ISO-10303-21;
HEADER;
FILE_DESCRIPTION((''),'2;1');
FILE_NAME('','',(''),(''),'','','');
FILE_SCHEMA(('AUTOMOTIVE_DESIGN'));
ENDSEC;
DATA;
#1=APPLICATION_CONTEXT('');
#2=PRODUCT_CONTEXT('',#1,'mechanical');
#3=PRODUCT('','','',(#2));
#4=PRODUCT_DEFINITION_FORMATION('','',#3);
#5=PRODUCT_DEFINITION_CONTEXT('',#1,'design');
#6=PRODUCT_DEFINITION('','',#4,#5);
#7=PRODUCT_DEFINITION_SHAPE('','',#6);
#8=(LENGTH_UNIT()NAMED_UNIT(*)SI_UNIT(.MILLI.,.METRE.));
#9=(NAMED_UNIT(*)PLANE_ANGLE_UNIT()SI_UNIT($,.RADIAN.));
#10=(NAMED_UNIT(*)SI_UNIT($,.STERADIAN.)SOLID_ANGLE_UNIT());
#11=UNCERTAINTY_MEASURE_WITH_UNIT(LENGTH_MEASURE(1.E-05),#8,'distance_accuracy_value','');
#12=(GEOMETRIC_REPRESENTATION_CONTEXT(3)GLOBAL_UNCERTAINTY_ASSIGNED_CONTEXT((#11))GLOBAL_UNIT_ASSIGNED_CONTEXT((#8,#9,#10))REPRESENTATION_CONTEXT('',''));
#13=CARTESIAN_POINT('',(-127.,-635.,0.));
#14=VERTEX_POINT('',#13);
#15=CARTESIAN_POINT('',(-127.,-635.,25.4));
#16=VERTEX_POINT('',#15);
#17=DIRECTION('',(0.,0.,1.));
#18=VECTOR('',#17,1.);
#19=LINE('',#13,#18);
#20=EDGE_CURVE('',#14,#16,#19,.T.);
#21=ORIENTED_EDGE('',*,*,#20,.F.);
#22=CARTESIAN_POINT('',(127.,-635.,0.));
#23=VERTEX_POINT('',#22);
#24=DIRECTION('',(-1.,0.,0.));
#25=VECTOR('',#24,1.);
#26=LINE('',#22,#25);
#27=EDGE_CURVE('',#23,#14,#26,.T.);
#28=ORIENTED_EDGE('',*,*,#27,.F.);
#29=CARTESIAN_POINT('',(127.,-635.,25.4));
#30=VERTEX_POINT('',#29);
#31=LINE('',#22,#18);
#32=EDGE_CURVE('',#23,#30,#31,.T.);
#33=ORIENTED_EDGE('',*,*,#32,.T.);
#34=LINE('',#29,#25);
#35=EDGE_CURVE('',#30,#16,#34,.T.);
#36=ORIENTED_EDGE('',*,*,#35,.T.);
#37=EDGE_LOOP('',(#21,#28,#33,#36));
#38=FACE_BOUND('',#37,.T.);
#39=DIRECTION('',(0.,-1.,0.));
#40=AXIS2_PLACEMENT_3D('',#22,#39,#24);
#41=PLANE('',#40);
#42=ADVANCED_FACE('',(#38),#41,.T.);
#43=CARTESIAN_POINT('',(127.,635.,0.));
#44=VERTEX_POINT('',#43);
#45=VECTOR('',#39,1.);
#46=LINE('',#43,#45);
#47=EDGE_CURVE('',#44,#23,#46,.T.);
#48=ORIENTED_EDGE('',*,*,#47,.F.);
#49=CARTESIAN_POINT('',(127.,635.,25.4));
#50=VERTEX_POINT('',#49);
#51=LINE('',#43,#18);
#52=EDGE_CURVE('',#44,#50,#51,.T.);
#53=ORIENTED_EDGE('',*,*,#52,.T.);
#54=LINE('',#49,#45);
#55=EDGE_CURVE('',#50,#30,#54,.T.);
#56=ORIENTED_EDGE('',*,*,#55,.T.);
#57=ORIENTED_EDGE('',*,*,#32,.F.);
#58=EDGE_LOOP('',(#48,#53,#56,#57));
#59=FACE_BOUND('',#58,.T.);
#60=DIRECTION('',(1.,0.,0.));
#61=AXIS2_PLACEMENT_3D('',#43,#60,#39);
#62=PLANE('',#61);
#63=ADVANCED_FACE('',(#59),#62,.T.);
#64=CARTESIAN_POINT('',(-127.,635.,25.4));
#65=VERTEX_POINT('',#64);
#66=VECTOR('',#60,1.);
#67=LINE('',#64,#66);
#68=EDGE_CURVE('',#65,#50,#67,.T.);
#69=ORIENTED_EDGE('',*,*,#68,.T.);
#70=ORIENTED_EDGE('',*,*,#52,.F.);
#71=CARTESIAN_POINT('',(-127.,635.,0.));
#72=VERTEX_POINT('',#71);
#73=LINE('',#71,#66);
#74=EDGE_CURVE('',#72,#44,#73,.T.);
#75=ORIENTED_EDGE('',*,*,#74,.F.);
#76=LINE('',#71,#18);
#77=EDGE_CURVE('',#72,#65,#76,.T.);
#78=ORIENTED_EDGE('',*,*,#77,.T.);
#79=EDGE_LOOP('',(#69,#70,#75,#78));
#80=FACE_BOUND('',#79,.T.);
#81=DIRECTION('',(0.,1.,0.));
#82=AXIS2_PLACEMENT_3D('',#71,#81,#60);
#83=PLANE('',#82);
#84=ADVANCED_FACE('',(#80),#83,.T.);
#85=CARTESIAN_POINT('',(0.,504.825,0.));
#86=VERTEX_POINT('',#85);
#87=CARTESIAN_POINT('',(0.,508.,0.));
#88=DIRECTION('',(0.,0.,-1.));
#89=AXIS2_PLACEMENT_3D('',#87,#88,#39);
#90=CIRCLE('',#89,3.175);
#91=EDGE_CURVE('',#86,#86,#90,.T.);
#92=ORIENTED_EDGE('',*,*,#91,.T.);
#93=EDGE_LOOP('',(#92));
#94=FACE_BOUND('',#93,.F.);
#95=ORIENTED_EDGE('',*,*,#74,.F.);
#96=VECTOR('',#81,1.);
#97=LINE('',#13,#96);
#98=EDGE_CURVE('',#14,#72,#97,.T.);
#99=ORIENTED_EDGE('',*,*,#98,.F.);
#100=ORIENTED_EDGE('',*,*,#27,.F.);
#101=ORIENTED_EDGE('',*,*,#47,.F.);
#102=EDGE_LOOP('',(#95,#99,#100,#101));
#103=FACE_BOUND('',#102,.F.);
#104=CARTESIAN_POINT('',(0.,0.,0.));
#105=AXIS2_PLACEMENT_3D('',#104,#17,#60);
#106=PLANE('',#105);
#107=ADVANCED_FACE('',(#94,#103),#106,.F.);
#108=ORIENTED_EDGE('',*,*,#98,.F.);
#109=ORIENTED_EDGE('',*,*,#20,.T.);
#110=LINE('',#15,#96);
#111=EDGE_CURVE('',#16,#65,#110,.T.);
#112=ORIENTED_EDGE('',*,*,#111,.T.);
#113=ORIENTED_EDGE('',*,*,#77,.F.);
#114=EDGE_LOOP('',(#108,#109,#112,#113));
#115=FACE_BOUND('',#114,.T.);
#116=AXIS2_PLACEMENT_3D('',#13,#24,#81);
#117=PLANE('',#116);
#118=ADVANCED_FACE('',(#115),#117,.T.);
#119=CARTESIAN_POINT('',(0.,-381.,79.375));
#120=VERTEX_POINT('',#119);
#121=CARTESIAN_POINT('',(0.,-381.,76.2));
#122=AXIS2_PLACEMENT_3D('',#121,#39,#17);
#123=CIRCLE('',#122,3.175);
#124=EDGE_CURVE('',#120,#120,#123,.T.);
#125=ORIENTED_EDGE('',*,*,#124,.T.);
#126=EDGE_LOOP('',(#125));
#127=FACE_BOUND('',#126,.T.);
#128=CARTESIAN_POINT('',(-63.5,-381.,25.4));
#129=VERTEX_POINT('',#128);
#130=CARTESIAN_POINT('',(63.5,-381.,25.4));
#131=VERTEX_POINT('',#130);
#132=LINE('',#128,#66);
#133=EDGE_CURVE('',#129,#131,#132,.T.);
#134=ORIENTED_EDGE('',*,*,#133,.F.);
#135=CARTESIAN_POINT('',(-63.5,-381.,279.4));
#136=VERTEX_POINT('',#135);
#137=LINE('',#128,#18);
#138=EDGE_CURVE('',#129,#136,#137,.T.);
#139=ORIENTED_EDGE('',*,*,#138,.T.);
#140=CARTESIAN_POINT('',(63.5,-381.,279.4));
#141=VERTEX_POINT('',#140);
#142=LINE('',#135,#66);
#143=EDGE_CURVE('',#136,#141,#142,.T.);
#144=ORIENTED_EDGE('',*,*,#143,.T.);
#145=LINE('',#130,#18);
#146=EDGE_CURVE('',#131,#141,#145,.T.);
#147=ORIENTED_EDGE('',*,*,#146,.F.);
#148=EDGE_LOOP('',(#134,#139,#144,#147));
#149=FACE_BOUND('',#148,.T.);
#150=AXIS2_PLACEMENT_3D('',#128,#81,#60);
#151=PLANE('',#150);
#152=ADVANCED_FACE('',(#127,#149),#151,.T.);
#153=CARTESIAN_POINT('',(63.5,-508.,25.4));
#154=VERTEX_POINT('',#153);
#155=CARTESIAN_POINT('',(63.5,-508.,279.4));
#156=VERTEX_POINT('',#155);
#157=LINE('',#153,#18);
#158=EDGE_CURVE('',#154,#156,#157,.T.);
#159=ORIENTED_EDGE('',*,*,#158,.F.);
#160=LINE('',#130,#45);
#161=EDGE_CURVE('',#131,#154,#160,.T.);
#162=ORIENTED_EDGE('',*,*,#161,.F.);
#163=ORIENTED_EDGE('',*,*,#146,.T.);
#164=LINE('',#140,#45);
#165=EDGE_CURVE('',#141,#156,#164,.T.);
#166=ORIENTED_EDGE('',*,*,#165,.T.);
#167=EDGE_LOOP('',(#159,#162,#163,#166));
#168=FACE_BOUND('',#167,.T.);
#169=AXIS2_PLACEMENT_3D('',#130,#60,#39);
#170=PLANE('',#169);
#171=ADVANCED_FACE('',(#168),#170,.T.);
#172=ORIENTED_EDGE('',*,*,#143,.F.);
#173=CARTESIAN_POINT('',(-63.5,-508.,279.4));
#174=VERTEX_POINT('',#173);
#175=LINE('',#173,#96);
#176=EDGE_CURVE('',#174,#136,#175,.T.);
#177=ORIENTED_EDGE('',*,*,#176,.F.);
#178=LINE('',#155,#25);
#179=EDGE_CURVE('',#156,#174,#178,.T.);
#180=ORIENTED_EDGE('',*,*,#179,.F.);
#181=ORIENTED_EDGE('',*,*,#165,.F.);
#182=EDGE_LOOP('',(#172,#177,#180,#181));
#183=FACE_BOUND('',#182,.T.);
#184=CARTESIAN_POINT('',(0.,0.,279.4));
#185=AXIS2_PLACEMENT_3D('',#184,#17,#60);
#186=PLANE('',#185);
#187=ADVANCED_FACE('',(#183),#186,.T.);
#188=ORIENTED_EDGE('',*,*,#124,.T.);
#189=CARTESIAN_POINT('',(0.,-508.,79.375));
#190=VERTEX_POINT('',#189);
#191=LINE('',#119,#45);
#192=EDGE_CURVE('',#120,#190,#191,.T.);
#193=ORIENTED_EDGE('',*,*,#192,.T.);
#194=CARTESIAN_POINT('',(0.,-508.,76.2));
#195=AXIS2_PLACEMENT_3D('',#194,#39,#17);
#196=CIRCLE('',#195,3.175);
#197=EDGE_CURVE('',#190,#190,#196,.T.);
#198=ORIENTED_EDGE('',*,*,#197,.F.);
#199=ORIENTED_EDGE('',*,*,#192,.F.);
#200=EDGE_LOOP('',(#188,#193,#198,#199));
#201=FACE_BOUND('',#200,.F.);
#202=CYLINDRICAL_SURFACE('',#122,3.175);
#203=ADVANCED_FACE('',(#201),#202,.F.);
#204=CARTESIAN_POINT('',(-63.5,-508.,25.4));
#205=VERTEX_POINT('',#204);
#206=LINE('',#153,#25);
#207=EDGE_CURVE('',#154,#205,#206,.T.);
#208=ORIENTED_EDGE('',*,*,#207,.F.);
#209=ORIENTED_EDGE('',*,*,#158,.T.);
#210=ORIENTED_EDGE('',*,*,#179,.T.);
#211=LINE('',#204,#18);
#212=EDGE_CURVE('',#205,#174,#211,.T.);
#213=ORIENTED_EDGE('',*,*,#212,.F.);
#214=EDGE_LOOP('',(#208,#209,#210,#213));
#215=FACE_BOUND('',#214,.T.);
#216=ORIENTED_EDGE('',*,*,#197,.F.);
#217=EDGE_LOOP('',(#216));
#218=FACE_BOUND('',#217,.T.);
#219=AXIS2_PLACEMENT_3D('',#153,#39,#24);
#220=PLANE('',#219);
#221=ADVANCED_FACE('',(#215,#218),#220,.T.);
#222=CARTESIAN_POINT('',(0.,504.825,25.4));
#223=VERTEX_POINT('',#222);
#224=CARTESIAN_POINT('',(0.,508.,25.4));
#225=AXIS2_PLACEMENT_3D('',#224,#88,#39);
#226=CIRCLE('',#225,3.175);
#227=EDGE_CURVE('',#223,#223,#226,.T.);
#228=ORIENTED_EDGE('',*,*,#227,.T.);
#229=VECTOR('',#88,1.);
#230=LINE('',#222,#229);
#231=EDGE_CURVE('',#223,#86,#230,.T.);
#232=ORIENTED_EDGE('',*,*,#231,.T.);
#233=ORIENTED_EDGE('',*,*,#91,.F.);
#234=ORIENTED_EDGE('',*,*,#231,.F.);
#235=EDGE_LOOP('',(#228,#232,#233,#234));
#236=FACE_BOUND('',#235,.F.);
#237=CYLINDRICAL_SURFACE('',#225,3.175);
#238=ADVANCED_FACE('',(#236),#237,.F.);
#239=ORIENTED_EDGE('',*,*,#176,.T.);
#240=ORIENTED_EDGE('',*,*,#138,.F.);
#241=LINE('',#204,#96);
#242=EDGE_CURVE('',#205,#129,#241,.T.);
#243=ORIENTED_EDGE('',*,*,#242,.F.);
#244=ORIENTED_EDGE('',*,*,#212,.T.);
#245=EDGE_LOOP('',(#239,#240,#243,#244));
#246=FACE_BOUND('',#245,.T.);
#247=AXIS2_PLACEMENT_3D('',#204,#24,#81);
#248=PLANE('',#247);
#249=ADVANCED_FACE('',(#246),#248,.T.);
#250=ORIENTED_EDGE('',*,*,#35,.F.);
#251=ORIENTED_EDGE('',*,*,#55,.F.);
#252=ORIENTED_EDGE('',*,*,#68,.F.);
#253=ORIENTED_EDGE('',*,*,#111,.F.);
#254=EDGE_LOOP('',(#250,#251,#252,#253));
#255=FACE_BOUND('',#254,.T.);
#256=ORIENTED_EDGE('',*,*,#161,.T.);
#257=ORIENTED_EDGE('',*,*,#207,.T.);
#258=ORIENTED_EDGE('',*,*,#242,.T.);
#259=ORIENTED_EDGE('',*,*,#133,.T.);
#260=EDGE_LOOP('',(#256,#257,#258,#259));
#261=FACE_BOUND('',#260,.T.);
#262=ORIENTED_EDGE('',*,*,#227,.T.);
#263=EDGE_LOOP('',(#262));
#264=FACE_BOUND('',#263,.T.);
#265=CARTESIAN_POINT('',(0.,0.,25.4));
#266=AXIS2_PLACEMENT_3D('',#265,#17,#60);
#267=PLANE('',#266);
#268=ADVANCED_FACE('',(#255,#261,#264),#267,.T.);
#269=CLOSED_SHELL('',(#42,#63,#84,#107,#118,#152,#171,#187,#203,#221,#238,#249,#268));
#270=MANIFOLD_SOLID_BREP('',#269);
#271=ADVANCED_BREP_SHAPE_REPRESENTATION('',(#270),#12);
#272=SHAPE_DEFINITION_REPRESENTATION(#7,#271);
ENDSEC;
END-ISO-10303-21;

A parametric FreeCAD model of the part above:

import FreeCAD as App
import Part
import Sketcher
from FreeCAD import Vector
Q = App.Units.Quantity


def add_polygon(sketch, points):
    """Adds a closed chain of lines whose ends are joined by coincident constraints."""
    first, n = sketch.GeometryCount, len(points)
    for a, b in zip(points, points[1:] + points[:1]):
        sketch.addGeometry(Part.LineSegment(App.Vector(*a, 0), App.Vector(*b, 0)), False)
    for i in range(n):
        sketch.addConstraint(Sketcher.Constraint("Coincident", first + i, 2, first + (i + 1) % n, 1))

doc = App.newDocument("Part")
body = doc.addObject("PartDesign::Body", "Body")

# Sketch on XY plane
sketch1 = body.newObject("Sketcher::SketchObject", "Sketch")
sketch1.AttachmentSupport = (doc.getObject("XY_Plane"), [""])
sketch1.MapMode = "FlatFace"
add_polygon(sketch1, [(127, 635), (-127, 635), (-127, -635), (127, -635)])  # lines 0-3
sketch1.addConstraint([
    Sketcher.Constraint("Horizontal", 0),
    Sketcher.Constraint("Vertical", 1),
    Sketcher.Constraint("Horizontal", 2),
    Sketcher.Constraint("Vertical", 3),
    Sketcher.Constraint("Symmetric", 0, 2, 2, 2, -1, 1),
    Sketcher.Constraint("DistanceX", 0, 2, 0, 1, Q("10 in")),
    Sketcher.Constraint("DistanceY", 1, 2, 1, 1, Q("50 in")),
])
pad1 = body.newObject("PartDesign::Pad", "Pad")
pad1.Profile = sketch1
pad1.Length = Q("1 in")

# Sketch on XY plane
sketch2 = body.newObject("Sketcher::SketchObject", "Sketch001")
sketch2.AttachmentSupport = (doc.getObject("XY_Plane"), [""])
sketch2.MapMode = "FlatFace"
sketch2.AttachmentOffset = App.Placement(Vector(0, 0, 1 * 25.4), App.Rotation())
sketch2.addGeometry(Part.Circle(Vector(0, 508, 0), Vector(0, 0, 1), 3.2), False)
sketch2.addConstraint([
    Sketcher.Constraint("PointOnObject", 0, 3, -2),
    Sketcher.Constraint("Diameter", 0, Q("0.25 in")),
    Sketcher.Constraint("DistanceY", -1, 1, 0, 3, Q("20 in")),
])
doc.recompute()
hole = body.newObject("PartDesign::Hole", "Hole")
hole.Profile = sketch2
hole.ThreadType = "None"
hole.Diameter = Q("0.25 in")
hole.DepthType = "ThroughAll"

# Sketch on XY plane
sketch3 = body.newObject("Sketcher::SketchObject", "Sketch002")
sketch3.AttachmentSupport = (doc.getObject("XY_Plane"), [""])
sketch3.MapMode = "FlatFace"
sketch3.AttachmentOffset = App.Placement(Vector(0, 0, 1 * 25.4), App.Rotation())
add_polygon(sketch3, [(64, -381), (-64, -381), (-64, -508), (64, -508)])  # lines 0-3
sketch3.addConstraint([
    Sketcher.Constraint("Horizontal", 0),
    Sketcher.Constraint("Vertical", 1),
    Sketcher.Constraint("Horizontal", 2),
    Sketcher.Constraint("Vertical", 3),
    Sketcher.Constraint("Equal", 2, 1),
    Sketcher.Constraint("DistanceX", 0, 2, 0, 1, Q("5 in")),
    Sketcher.Constraint("DistanceY", 0, 2, -1, 1, Q("15 in")),
    Sketcher.Constraint("DistanceX", 0, 2, -1, 1, Q("2.5 in")),
])
pad2 = body.newObject("PartDesign::Pad", "Pad001")
pad2.Profile = sketch3
pad2.Length = Q("10 in")

# Sketch on XZ plane
sketch4 = body.newObject("Sketcher::SketchObject", "Sketch003")
sketch4.AttachmentSupport = (doc.getObject("XZ_Plane"), [""])
sketch4.MapMode = "FlatFace"
sketch4.AttachmentOffset = App.Placement(Vector(0, 0, 15 * 25.4), App.Rotation())
sketch4.addGeometry(Part.Circle(Vector(0, 76.2, 0), Vector(0, 0, 1), 3.2), False)
sketch4.addConstraint([
    Sketcher.Constraint("PointOnObject", 0, 3, -2),
    Sketcher.Constraint("Diameter", 0, Q("0.25 in")),
    Sketcher.Constraint("DistanceY", -1, 1, 0, 3, Q("3 in")),
])
doc.recompute()
hole2 = body.newObject("PartDesign::Hole", "Hole001")
hole2.Profile = sketch4
hole2.ThreadType = "None"
hole2.Diameter = Q("0.25 in")
hole2.DepthType = "ThroughAll"
hole2.Reversed = True

doc.recompute()
